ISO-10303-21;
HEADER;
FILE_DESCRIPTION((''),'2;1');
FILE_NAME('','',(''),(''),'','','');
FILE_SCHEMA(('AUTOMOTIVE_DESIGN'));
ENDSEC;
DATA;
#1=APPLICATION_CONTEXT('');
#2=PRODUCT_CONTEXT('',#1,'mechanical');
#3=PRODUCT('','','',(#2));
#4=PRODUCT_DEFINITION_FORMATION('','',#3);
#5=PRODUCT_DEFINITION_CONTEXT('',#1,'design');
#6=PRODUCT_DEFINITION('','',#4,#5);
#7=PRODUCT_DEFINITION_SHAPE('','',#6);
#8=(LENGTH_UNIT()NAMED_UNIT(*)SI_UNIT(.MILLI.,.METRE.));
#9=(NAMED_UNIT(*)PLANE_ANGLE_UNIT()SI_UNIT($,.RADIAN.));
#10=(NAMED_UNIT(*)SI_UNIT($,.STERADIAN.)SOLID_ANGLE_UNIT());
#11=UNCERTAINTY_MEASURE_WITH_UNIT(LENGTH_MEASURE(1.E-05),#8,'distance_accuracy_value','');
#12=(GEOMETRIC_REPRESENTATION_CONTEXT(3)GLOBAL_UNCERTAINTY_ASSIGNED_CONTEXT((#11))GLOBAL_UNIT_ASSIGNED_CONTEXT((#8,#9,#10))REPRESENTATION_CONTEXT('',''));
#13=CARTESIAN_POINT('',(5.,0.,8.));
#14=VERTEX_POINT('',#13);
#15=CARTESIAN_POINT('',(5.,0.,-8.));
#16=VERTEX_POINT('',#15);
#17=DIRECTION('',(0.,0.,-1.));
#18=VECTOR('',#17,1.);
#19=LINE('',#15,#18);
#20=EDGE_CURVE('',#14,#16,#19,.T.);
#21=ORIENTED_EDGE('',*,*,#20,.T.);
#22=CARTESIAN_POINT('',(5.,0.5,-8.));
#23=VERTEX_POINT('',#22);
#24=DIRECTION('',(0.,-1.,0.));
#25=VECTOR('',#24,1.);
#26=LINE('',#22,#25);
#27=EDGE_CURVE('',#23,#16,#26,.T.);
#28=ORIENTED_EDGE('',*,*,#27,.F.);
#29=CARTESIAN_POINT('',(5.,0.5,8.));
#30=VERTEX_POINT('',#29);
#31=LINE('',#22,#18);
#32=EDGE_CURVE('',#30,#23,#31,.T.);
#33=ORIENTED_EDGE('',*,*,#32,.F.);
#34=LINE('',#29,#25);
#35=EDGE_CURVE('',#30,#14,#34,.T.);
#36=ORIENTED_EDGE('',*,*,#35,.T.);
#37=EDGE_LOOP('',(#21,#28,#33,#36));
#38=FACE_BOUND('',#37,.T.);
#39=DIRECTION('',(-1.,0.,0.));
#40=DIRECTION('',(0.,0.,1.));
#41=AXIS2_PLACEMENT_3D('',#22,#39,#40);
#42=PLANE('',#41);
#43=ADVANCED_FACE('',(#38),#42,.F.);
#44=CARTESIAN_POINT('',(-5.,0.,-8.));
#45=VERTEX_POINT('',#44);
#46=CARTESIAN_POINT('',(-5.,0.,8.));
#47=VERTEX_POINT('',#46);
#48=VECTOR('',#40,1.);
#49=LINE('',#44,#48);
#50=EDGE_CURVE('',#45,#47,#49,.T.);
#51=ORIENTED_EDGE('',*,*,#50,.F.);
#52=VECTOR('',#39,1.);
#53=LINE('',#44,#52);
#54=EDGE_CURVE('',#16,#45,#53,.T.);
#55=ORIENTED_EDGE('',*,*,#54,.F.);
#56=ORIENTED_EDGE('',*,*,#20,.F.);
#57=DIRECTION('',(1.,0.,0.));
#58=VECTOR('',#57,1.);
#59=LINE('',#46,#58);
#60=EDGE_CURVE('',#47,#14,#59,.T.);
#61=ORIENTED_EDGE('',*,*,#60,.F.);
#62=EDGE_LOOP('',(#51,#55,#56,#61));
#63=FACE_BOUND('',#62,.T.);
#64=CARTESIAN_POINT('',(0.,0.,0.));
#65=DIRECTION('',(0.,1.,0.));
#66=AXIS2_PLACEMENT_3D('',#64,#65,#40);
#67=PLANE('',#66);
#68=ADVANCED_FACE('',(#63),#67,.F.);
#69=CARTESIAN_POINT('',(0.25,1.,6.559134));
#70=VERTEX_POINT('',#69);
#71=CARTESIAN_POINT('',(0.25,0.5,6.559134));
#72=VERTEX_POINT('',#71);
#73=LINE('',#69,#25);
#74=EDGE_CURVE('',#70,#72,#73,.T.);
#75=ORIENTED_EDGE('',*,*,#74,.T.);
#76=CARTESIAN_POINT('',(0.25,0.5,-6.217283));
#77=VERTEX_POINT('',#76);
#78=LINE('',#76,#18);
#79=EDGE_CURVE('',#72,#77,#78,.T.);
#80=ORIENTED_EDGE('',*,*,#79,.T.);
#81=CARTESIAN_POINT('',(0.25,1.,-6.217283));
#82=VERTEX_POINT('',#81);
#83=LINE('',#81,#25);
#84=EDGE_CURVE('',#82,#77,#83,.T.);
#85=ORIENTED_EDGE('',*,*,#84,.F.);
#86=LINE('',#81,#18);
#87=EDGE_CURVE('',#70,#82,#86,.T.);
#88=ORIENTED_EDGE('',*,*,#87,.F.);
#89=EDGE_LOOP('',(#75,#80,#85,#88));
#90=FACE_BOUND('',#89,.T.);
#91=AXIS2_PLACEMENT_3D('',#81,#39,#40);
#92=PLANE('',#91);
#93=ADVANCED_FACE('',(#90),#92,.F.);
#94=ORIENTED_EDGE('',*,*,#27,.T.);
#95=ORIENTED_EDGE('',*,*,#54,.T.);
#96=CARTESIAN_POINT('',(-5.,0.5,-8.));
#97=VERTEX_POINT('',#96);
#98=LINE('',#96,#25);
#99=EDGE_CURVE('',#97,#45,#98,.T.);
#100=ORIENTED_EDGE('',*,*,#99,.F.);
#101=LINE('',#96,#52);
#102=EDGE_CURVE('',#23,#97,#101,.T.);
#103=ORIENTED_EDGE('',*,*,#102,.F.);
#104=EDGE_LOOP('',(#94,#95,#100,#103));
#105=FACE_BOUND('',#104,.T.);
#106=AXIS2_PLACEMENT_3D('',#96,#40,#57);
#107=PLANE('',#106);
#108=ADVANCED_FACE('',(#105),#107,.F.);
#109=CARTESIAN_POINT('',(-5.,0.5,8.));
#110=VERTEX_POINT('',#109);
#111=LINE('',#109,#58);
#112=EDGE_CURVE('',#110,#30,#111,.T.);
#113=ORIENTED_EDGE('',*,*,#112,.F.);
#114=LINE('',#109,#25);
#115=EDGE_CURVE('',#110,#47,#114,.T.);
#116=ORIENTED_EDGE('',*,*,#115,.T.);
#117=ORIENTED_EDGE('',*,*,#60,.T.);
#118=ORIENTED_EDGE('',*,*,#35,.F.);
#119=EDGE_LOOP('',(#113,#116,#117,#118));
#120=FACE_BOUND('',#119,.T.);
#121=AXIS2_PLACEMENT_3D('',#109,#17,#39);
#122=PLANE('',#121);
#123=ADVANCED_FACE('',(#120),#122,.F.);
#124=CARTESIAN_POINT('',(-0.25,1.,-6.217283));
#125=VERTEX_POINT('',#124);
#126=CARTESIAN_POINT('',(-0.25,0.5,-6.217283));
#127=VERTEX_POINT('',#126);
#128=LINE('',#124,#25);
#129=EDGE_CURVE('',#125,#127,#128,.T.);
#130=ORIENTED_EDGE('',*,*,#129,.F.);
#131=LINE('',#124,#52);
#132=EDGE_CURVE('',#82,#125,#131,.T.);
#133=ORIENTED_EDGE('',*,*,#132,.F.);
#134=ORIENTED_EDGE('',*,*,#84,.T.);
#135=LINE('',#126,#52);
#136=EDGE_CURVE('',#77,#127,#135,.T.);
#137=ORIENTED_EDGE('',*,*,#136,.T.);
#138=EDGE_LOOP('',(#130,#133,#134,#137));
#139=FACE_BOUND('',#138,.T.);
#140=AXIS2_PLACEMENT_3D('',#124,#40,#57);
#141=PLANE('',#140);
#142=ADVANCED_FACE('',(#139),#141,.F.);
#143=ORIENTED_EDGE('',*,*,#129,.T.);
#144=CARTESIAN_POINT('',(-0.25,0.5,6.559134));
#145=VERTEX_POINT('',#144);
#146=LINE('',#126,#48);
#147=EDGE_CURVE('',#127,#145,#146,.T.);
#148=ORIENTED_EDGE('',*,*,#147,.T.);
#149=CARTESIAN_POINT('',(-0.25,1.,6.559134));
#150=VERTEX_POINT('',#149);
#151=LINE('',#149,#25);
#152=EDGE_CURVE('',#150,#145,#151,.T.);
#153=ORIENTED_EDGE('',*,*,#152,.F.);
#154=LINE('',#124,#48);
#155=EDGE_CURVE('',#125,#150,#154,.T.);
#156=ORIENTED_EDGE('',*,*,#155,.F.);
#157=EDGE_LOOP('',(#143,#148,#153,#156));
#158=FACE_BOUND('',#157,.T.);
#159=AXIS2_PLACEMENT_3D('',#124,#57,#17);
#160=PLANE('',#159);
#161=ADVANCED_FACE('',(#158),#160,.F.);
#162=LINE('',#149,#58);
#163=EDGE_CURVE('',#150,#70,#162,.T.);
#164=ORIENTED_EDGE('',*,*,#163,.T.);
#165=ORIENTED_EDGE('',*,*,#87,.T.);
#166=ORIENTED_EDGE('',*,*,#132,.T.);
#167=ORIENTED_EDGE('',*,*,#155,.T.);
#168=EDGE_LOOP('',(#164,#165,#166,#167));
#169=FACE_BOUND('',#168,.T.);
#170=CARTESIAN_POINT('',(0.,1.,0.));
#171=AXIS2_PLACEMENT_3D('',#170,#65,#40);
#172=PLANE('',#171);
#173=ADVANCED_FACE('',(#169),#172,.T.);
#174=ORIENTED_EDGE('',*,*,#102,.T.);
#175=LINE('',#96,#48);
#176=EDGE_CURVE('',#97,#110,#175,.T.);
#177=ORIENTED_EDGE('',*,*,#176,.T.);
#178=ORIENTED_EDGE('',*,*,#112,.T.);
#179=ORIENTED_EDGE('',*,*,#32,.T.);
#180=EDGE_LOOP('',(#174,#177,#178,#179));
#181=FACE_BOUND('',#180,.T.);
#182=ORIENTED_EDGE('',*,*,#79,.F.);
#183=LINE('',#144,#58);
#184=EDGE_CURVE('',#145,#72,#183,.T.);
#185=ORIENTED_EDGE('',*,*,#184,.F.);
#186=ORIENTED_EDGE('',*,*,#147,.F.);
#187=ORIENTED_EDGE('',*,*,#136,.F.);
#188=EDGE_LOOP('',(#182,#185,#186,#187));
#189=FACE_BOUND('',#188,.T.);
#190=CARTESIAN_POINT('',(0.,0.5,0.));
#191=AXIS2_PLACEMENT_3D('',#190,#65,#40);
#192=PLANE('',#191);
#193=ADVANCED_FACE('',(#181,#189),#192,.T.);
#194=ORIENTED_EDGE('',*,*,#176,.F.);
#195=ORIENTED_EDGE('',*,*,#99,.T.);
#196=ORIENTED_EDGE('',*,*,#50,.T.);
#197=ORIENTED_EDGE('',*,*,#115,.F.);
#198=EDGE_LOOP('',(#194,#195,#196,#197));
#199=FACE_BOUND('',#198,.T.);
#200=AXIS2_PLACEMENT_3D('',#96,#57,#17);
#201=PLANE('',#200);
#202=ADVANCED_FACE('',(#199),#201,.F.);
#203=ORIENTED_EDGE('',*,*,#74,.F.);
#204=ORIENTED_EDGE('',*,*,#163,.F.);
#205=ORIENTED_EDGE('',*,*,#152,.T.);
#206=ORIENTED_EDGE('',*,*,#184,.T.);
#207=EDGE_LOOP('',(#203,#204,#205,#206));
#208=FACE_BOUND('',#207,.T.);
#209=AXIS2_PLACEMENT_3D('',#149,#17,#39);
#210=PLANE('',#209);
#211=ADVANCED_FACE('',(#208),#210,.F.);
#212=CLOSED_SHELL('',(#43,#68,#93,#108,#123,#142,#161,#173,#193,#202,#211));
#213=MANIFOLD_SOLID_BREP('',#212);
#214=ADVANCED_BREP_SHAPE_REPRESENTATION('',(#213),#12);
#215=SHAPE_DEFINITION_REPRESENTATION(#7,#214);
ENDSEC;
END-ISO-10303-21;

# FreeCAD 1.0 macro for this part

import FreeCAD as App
import Part
import Sketcher
Q = App.Units.Quantity


def add_polygon(sketch, points):
    """Adds a closed chain of lines whose ends are joined by coincident constraints."""
    first, n = sketch.GeometryCount, len(points)
    for a, b in zip(points, points[1:] + points[:1]):
        sketch.addGeometry(Part.LineSegment(App.Vector(*a, 0), App.Vector(*b, 0)), False)
    for i in range(n):
        sketch.addConstraint(Sketcher.Constraint("Coincident", first + i, 2, first + (i + 1) % n, 1))

doc = App.newDocument("Part")
body = doc.addObject("PartDesign::Body", "Body")

# Sketch on XZ plane
sketch1 = body.newObject("Sketcher::SketchObject", "Sketch")
sketch1.AttachmentSupport = (doc.getObject("XZ_Plane"), [""])
sketch1.MapMode = "FlatFace"
add_polygon(sketch1, [(-5, -8), (-5, 8), (5, 8), (5, -8)])  # lines 0-3
sketch1.addConstraint([
    Sketcher.Constraint("Vertical", 0),
    Sketcher.Constraint("Horizontal", 1),
    Sketcher.Constraint("Vertical", 2),
    Sketcher.Constraint("Horizontal", 3),
    Sketcher.Constraint("Symmetric", 0, 2, 2, 2, -1, 1),
    Sketcher.Constraint("DistanceX", 1, 1, 1, 2, Q("10 mm")),
    Sketcher.Constraint("DistanceY", 0, 1, 0, 2, Q("16 mm")),
])
pad1 = body.newObject("PartDesign::Pad", "Pad")
pad1.Profile = sketch1
pad1.Length = 0.5
pad1.Reversed = True

# Sketch on XZ plane
sketch2 = body.newObject("Sketcher::SketchObject", "Sketch001")
sketch2.AttachmentSupport = (doc.getObject("XZ_Plane"), [""])
sketch2.MapMode = "FlatFace"
sketch2.AttachmentOffset = App.Placement(App.Vector(0, 0, -0.5), App.Rotation())
add_polygon(sketch2, [(-0.2, -6.2), (-0.2, 6.6), (0.2, 6.6), (0.2, -6.2)])  # lines 0-3
sketch2.addConstraint([
    Sketcher.Constraint("Vertical", 0),
    Sketcher.Constraint("Horizontal", 1),
    Sketcher.Constraint("Vertical", 2),
    Sketcher.Constraint("Horizontal", 3),
    Sketcher.Constraint("DistanceX", 1, 1, 1, 2, Q("0.5 mm")),
    Sketcher.Constraint("DistanceX", 0, 2, -1, 1, Q("0.25 mm")),
    Sketcher.Constraint("DistanceY", 0, 1, 0, 2, Q("12.776418 mm")),
    Sketcher.Constraint("DistanceY", -1, 1, 0, 2, Q("6.559134 mm")),
])
pad2 = body.newObject("PartDesign::Pad", "Pad001")
pad2.Profile = sketch2
pad2.Length = 0.5
pad2.Reversed = True

doc.recompute()
